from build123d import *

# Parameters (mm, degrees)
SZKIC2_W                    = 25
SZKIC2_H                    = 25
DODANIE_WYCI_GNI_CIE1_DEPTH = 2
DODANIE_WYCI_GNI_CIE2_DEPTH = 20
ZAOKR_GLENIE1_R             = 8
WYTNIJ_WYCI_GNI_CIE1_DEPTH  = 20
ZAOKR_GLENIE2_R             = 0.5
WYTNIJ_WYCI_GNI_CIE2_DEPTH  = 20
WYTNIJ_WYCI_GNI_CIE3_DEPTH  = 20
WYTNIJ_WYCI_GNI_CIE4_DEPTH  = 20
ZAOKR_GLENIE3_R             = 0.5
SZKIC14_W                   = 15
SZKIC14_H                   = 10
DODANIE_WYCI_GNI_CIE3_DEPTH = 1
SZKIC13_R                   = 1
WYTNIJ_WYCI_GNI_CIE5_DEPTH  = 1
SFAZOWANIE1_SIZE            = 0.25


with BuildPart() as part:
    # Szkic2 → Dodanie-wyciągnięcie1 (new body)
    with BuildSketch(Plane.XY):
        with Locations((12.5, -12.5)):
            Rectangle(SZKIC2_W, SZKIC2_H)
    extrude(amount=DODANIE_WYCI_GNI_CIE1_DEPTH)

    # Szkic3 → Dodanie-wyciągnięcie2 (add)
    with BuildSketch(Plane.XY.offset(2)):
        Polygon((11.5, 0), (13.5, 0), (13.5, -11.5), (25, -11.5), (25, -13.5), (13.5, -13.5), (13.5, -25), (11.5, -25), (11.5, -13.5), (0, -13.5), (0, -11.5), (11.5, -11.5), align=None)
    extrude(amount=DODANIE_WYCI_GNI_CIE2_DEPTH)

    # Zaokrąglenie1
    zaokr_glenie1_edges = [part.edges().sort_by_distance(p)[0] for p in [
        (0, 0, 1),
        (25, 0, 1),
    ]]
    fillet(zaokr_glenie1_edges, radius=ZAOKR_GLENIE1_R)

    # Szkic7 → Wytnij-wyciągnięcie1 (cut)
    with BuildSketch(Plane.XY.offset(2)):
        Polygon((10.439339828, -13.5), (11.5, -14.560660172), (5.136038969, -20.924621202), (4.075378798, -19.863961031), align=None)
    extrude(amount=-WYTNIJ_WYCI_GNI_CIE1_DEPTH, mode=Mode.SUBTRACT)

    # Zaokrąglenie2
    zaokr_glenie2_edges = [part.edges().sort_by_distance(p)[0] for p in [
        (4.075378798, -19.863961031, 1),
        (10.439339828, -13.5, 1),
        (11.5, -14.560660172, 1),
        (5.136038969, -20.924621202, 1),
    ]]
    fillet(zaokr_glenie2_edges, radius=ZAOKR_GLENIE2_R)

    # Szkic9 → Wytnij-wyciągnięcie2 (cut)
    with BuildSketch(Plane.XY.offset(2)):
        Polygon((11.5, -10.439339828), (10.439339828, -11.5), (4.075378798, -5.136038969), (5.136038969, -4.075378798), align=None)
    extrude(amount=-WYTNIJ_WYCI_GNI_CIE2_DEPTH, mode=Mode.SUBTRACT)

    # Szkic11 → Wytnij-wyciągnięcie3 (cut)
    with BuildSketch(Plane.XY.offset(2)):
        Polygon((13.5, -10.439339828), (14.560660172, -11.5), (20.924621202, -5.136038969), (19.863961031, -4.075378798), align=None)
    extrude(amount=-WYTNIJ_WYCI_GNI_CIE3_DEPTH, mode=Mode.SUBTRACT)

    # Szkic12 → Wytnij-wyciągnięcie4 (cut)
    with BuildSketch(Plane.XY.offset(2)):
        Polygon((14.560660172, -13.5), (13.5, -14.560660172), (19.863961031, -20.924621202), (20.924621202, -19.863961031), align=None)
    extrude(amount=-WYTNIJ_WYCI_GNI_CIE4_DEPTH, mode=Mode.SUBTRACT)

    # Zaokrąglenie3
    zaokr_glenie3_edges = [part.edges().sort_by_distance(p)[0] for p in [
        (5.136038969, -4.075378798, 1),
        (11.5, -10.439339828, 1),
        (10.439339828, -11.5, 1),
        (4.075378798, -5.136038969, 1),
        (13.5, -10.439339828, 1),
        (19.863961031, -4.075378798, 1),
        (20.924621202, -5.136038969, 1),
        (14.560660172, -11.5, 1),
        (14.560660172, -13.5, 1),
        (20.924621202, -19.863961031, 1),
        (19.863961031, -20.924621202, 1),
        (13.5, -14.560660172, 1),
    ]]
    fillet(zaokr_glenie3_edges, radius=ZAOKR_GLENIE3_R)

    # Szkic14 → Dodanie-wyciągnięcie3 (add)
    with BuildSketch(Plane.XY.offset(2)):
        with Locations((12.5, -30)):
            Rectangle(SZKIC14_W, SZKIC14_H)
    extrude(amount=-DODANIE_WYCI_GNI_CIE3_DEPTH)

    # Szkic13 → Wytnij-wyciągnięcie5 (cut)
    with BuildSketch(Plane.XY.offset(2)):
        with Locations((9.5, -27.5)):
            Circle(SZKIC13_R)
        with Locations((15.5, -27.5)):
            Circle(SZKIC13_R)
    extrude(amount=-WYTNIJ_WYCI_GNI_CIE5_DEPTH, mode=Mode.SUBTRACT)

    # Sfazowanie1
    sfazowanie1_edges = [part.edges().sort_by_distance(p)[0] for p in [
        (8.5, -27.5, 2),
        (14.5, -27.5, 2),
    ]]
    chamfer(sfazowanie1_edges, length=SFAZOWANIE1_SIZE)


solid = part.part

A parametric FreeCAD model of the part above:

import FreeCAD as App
import Part
import Sketcher
from FreeCAD import Vector
Q = App.Units.Quantity


def edges_at(feature, points):
    """Names of the edges that pass closest to the given points."""
    edges = feature.Shape.Edges
    near = lambda p: min(range(len(edges)), key=lambda i: edges[i].distToShape(Part.Vertex(*p))[0])
    return sorted({f"Edge{near(p) + 1}" for p in points})

doc = App.newDocument("Part")
params = doc.addObject("Spreadsheet::Sheet", "Params")
for row, (alias, value) in enumerate([
    ("sketch1_width", "25 mm"),
    ("pad1_length", "2 mm"),
    ("sketch2_width", "2 mm"),
    ("sketch2_width2", "11.5 mm"),
    ("pad2_length", "20 mm"),
    ("fillet_radius", "8 mm"),
    ("sketch3_length", "9 mm"),
    ("sketch3_length2", "1.5 mm"),
    ("pocket1_length", "20 mm"),
    ("fillet2_radius", "0.5 mm"),
    ("sketch4_length", "9 mm"),
    ("sketch4_length2", "1.5 mm"),
    ("pocket2_length", "20 mm"),
    ("sketch5_length", "9 mm"),
    ("sketch5_length2", "1.5 mm"),
    ("pocket3_length", "20 mm"),
    ("sketch6_length", "9 mm"),
    ("sketch6_length2", "1.5 mm"),
    ("pocket4_length", "20 mm"),
    ("fillet3_radius", "0.5 mm"),
    ("sketch7_width", "15 mm"),
    ("sketch7_height", "10 mm"),
    ("pad3_length", "1 mm"),
    ("sketch8_diameter", "2 mm"),
    ("pocket5_length", "1 mm"),
    ("chamfer_size", "0.25 mm"),
], start=1):
    params.set(f"A{row}", alias)
    params.set(f"B{row}", "=" + value)
    params.setAlias(f"B{row}", alias)

body = doc.addObject("PartDesign::Body", "Body")

sketch1 = body.newObject("Sketcher::SketchObject", "Sketch")
sketch1.AttachmentSupport = (doc.getObject("XY_Plane"), [""])
sketch1.MapMode = "FlatFace"
sketch1.addGeometry([
    Part.LineSegment(Vector(0, 0, 0), Vector(0, -25, 0)),
    Part.LineSegment(Vector(0, -25, 0), Vector(25, -25, 0)),
    Part.LineSegment(Vector(25, -25, 0), Vector(25, 0, 0)),
    Part.LineSegment(Vector(25, 0, 0), Vector(0, 0, 0)),
], False)
sketch1.addConstraint([
    Sketcher.Constraint("Coincident", 0, 2, 1, 1),
    Sketcher.Constraint("Coincident", 1, 2, 2, 1),
    Sketcher.Constraint("Coincident", 2, 2, 3, 1),
    Sketcher.Constraint("Coincident", 3, 2, 0, 1),
    Sketcher.Constraint("Vertical", 0),
    Sketcher.Constraint("Horizontal", 1),
    Sketcher.Constraint("Vertical", 2),
    Sketcher.Constraint("Horizontal", 3),
    Sketcher.Constraint("Coincident", 3, 2, -1, 1),
    Sketcher.Constraint("Equal", 3, 0),
    Sketcher.Constraint("DistanceX", 1, 1, 1, 2, Q("25 mm")),
])
sketch1.setExpression("Constraints[10]", "Params.sketch1_width")
pad1 = body.newObject("PartDesign::Pad", "Pad")
pad1.Profile = sketch1
pad1.setExpression("Length", "Params.pad1_length")

sketch2 = body.newObject("Sketcher::SketchObject", "Sketch001")
sketch2.AttachmentSupport = (doc.getObject("XY_Plane"), [""])
sketch2.MapMode = "FlatFace"
sketch2.AttachmentOffset = App.Placement(Vector(0, 0, 2), App.Rotation())
sketch2.addGeometry([
    Part.LineSegment(Vector(13.5, 0, 0), Vector(11.5, 0, 0)),
    Part.LineSegment(Vector(11.5, 0, 0), Vector(11.5, -11.5, 0)),
    Part.LineSegment(Vector(11.5, -11.5, 0), Vector(0, -11.5, 0)),
    Part.LineSegment(Vector(0, -11.5, 0), Vector(0, -13.5, 0)),
    Part.LineSegment(Vector(0, -13.5, 0), Vector(11.5, -13.5, 0)),
    Part.LineSegment(Vector(11.5, -13.5, 0), Vector(11.5, -25, 0)),
    Part.LineSegment(Vector(11.5, -25, 0), Vector(13.5, -25, 0)),
    Part.LineSegment(Vector(13.5, -25, 0), Vector(13.5, -13.5, 0)),
    Part.LineSegment(Vector(13.5, -13.5, 0), Vector(25, -13.5, 0)),
    Part.LineSegment(Vector(25, -13.5, 0), Vector(25, -11.5, 0)),
    Part.LineSegment(Vector(25, -11.5, 0), Vector(13.5, -11.5, 0)),
    Part.LineSegment(Vector(13.5, -11.5, 0), Vector(13.5, 0, 0)),
], False)
sketch2.addConstraint([
    Sketcher.Constraint("Coincident", 0, 2, 1, 1),
    Sketcher.Constraint("Coincident", 1, 2, 2, 1),
    Sketcher.Constraint("Coincident", 2, 2, 3, 1),
    Sketcher.Constraint("Coincident", 3, 2, 4, 1),
    Sketcher.Constraint("Coincident", 4, 2, 5, 1),
    Sketcher.Constraint("Coincident", 5, 2, 6, 1),
    Sketcher.Constraint("Coincident", 6, 2, 7, 1),
    Sketcher.Constraint("Coincident", 7, 2, 8, 1),
    Sketcher.Constraint("Coincident", 8, 2, 9, 1),
    Sketcher.Constraint("Coincident", 9, 2, 10, 1),
    Sketcher.Constraint("Coincident", 10, 2, 11, 1),
    Sketcher.Constraint("Coincident", 11, 2, 0, 1),
    Sketcher.Constraint("Horizontal", 0),
    Sketcher.Constraint("Vertical", 1),
    Sketcher.Constraint("Horizontal", 2),
    Sketcher.Constraint("Vertical", 3),
    Sketcher.Constraint("Horizontal", 4),
    Sketcher.Constraint("Vertical", 5),
    Sketcher.Constraint("Horizontal", 6),
    Sketcher.Constraint("Vertical", 7),
    Sketcher.Constraint("Horizontal", 8),
    Sketcher.Constraint("Vertical", 9),
    Sketcher.Constraint("Horizontal", 10),
    Sketcher.Constraint("Vertical", 11),
    Sketcher.Constraint("PointOnObject", 0, 2, -1),
    Sketcher.Constraint("PointOnObject", 2, 2, -2),
    Sketcher.Constraint("Horizontal", 4, 2, 7, 2),
    Sketcher.Constraint("Horizontal", 2, 2, 9, 2),
    Sketcher.Constraint("Vertical", 1, 2, 4, 2),
    Sketcher.Constraint("Vertical", 7, 2, 10, 2),
    Sketcher.Constraint("Equal", 4, 8),
    Sketcher.Constraint("Equal", 10, 1),
    Sketcher.Constraint("Equal", 6, 3),
    Sketcher.Constraint("Equal", 1, 5),
    Sketcher.Constraint("DistanceX", 0, 2, 0, 1, Q("2 mm")),
    Sketcher.Constraint("DistanceX", 2, 2, 2, 1, Q("11.5 mm")),
])
sketch2.setExpression("Constraints[34]", "Params.sketch2_width")
sketch2.setExpression("Constraints[35]", "Params.sketch2_width2")
pad2 = body.newObject("PartDesign::Pad", "Pad001")
pad2.Profile = sketch2
pad2.setExpression("Length", "Params.pad2_length")
doc.recompute()

fillet = body.newObject("PartDesign::Fillet", "Fillet")
fillet.Base = (pad2, edges_at(pad2, [(0, 0, 1), (25, 0, 1)]))
fillet.setExpression("Radius", "Params.fillet_radius")

sketch3 = body.newObject("Sketcher::SketchObject", "Sketch002")
sketch3.AttachmentSupport = (doc.getObject("XY_Plane"), [""])
sketch3.MapMode = "FlatFace"
sketch3.AttachmentOffset = App.Placement(Vector(0, 0, 2), App.Rotation())
sketch3.addGeometry([
    Part.LineSegment(Vector(11.5, -14.6, 0), Vector(10.4, -13.5, 0)),
    Part.LineSegment(Vector(10.4, -13.5, 0), Vector(4.1, -19.9, 0)),
    Part.LineSegment(Vector(4.1, -19.9, 0), Vector(5.1, -20.9, 0)),
    Part.LineSegment(Vector(5.1, -20.9, 0), Vector(11.5, -14.6, 0)),
], False)
sketch3.addConstraint([
    Sketcher.Constraint("Coincident", 0, 2, 1, 1),
    Sketcher.Constraint("Coincident", 1, 2, 2, 1),
    Sketcher.Constraint("Coincident", 2, 2, 3, 1),
    Sketcher.Constraint("Coincident", 3, 2, 0, 1),
    Sketcher.Constraint("Perpendicular", 0, 1),
    Sketcher.Constraint("Perpendicular", 1, 2),
    Sketcher.Constraint("Perpendicular", 2, 3),
    Sketcher.Constraint("Angle", 0, Q("135 deg")),
    Sketcher.Constraint("Distance", 1, Q("9 mm")),
    Sketcher.Constraint("Distance", 0, Q("1.5 mm")),
    Sketcher.Constraint("DistanceY", 0, 2, -1, 1, Q("13.5 mm")),
    Sketcher.Constraint("DistanceX", -1, 1, 3, 2, Q("11.5 mm")),
])
sketch3.setExpression("Constraints[8]", "Params.sketch3_length")
sketch3.setExpression("Constraints[9]", "Params.sketch3_length2")
pocket1 = body.newObject("PartDesign::Pocket", "Pocket")
pocket1.Profile = sketch3
pocket1.setExpression("Length", "Params.pocket1_length")
doc.recompute()

fillet2 = body.newObject("PartDesign::Fillet", "Fillet001")
fillet2.Base = (pocket1, edges_at(pocket1, [
    (4.075, -19.864, 1),
    (10.439, -13.5, 1),
    (11.5, -14.561, 1),
    (5.136, -20.925, 1),
]))
fillet2.setExpression("Radius", "Params.fillet2_radius")

sketch4 = body.newObject("Sketcher::SketchObject", "Sketch003")
sketch4.AttachmentSupport = (doc.getObject("XY_Plane"), [""])
sketch4.MapMode = "FlatFace"
sketch4.AttachmentOffset = App.Placement(Vector(0, 0, 2), App.Rotation())
sketch4.addGeometry([
    Part.LineSegment(Vector(10.4, -11.5, 0), Vector(11.5, -10.4, 0)),
    Part.LineSegment(Vector(11.5, -10.4, 0), Vector(5.1, -4.1, 0)),
    Part.LineSegment(Vector(5.1, -4.1, 0), Vector(4.1, -5.1, 0)),
    Part.LineSegment(Vector(4.1, -5.1, 0), Vector(10.4, -11.5, 0)),
], False)
sketch4.addConstraint([
    Sketcher.Constraint("Coincident", 0, 2, 1, 1),
    Sketcher.Constraint("Coincident", 1, 2, 2, 1),
    Sketcher.Constraint("Coincident", 2, 2, 3, 1),
    Sketcher.Constraint("Coincident", 3, 2, 0, 1),
    Sketcher.Constraint("Perpendicular", 0, 1),
    Sketcher.Constraint("Perpendicular", 1, 2),
    Sketcher.Constraint("Perpendicular", 2, 3),
    Sketcher.Constraint("Angle", 0, Q("45 deg")),
    Sketcher.Constraint("Distance", 1, Q("9 mm")),
    Sketcher.Constraint("Distance", 0, Q("1.5 mm")),
    Sketcher.Constraint("DistanceX", -1, 1, 0, 2, Q("11.5 mm")),
    Sketcher.Constraint("DistanceY", 3, 2, -1, 1, Q("11.5 mm")),
])
sketch4.setExpression("Constraints[8]", "Params.sketch4_length")
sketch4.setExpression("Constraints[9]", "Params.sketch4_length2")
pocket2 = body.newObject("PartDesign::Pocket", "Pocket001")
pocket2.Profile = sketch4
pocket2.setExpression("Length", "Params.pocket2_length")

sketch5 = body.newObject("Sketcher::SketchObject", "Sketch004")
sketch5.AttachmentSupport = (doc.getObject("XY_Plane"), [""])
sketch5.MapMode = "FlatFace"
sketch5.AttachmentOffset = App.Placement(Vector(0, 0, 2), App.Rotation())
sketch5.addGeometry([
    Part.LineSegment(Vector(13.5, -10.4, 0), Vector(14.6, -11.5, 0)),
    Part.LineSegment(Vector(14.6, -11.5, 0), Vector(20.9, -5.1, 0)),
    Part.LineSegment(Vector(20.9, -5.1, 0), Vector(19.9, -4.1, 0)),
    Part.LineSegment(Vector(19.9, -4.1, 0), Vector(13.5, -10.4, 0)),
], False)
sketch5.addConstraint([
    Sketcher.Constraint("Coincident", 0, 2, 1, 1),
    Sketcher.Constraint("Coincident", 1, 2, 2, 1),
    Sketcher.Constraint("Coincident", 2, 2, 3, 1),
    Sketcher.Constraint("Coincident", 3, 2, 0, 1),
    Sketcher.Constraint("Perpendicular", 0, 1),
    Sketcher.Constraint("Perpendicular", 1, 2),
    Sketcher.Constraint("Perpendicular", 2, 3),
    Sketcher.Constraint("Angle", 0, Q("-45 deg")),
    Sketcher.Constraint("Distance", 1, Q("9 mm")),
    Sketcher.Constraint("Distance", 0, Q("1.5 mm")),
    Sketcher.Constraint("DistanceY", 0, 2, -1, 1, Q("11.5 mm")),
    Sketcher.Constraint("DistanceX", -1, 1, 3, 2, Q("13.5 mm")),
])
sketch5.setExpression("Constraints[8]", "Params.sketch5_length")
sketch5.setExpression("Constraints[9]", "Params.sketch5_length2")
pocket3 = body.newObject("PartDesign::Pocket", "Pocket002")
pocket3.Profile = sketch5
pocket3.setExpression("Length", "Params.pocket3_length")

sketch6 = body.newObject("Sketcher::SketchObject", "Sketch005")
sketch6.AttachmentSupport = (doc.getObject("XY_Plane"), [""])
sketch6.MapMode = "FlatFace"
sketch6.AttachmentOffset = App.Placement(Vector(0, 0, 2), App.Rotation())
sketch6.addGeometry([
    Part.LineSegment(Vector(14.6, -13.5, 0), Vector(13.5, -14.6, 0)),
    Part.LineSegment(Vector(13.5, -14.6, 0), Vector(19.9, -20.9, 0)),
    Part.LineSegment(Vector(19.9, -20.9, 0), Vector(20.9, -19.9, 0)),
    Part.LineSegment(Vector(20.9, -19.9, 0), Vector(14.6, -13.5, 0)),
], False)
sketch6.addConstraint([
    Sketcher.Constraint("Coincident", 0, 2, 1, 1),
    Sketcher.Constraint("Coincident", 1, 2, 2, 1),
    Sketcher.Constraint("Coincident", 2, 2, 3, 1),
    Sketcher.Constraint("Coincident", 3, 2, 0, 1),
    Sketcher.Constraint("Perpendicular", 0, 1),
    Sketcher.Constraint("Perpendicular", 1, 2),
    Sketcher.Constraint("Perpendicular", 2, 3),
    Sketcher.Constraint("Angle", 0, Q("-135 deg")),
    Sketcher.Constraint("Distance", 1, Q("9 mm")),
    Sketcher.Constraint("Distance", 0, Q("1.5 mm")),
    Sketcher.Constraint("DistanceX", -1, 1, 0, 2, Q("13.5 mm")),
    Sketcher.Constraint("DistanceY", 3, 2, -1, 1, Q("13.5 mm")),
])
sketch6.setExpression("Constraints[8]", "Params.sketch6_length")
sketch6.setExpression("Constraints[9]", "Params.sketch6_length2")
pocket4 = body.newObject("PartDesign::Pocket", "Pocket003")
pocket4.Profile = sketch6
pocket4.setExpression("Length", "Params.pocket4_length")
doc.recompute()

fillet3 = body.newObject("PartDesign::Fillet", "Fillet002")
fillet3.Base = (pocket4, edges_at(pocket4, [
    (5.136, -4.075, 1),
    (11.5, -10.439, 1),
    (10.439, -11.5, 1),
    (4.075, -5.136, 1),
    (13.5, -10.439, 1),
    (19.864, -4.075, 1),
    (20.925, -5.136, 1),
    (14.561, -11.5, 1),
    (14.561, -13.5, 1),
    (20.925, -19.864, 1),
    (19.864, -20.925, 1),
    (13.5, -14.561, 1),
]))
fillet3.setExpression("Radius", "Params.fillet3_radius")

sketch7 = body.newObject("Sketcher::SketchObject", "Sketch006")
sketch7.AttachmentSupport = (doc.getObject("XY_Plane"), [""])
sketch7.MapMode = "FlatFace"
sketch7.AttachmentOffset = App.Placement(Vector(0, 0, 2), App.Rotation())
sketch7.addGeometry([
    Part.LineSegment(Vector(5, -25, 0), Vector(5, -35, 0)),
    Part.LineSegment(Vector(5, -35, 0), Vector(20, -35, 0)),
    Part.LineSegment(Vector(20, -35, 0), Vector(20, -25, 0)),
    Part.LineSegment(Vector(20, -25, 0), Vector(5, -25, 0)),
], False)
sketch7.addConstraint([
    Sketcher.Constraint("Coincident", 0, 2, 1, 1),
    Sketcher.Constraint("Coincident", 1, 2, 2, 1),
    Sketcher.Constraint("Coincident", 2, 2, 3, 1),
    Sketcher.Constraint("Coincident", 3, 2, 0, 1),
    Sketcher.Constraint("Vertical", 0),
    Sketcher.Constraint("Horizontal", 1),
    Sketcher.Constraint("Vertical", 2),
    Sketcher.Constraint("Horizontal", 3),
    Sketcher.Constraint("DistanceX", 1, 1, 1, 2, Q("15 mm")),
    Sketcher.Constraint("DistanceY", 0, 2, 0, 1, Q("10 mm")),
    Sketcher.Constraint("DistanceX", -1, 1, 0, 2, Q("5 mm")),
    Sketcher.Constraint("DistanceY", 0, 2, -1, 1, Q("35 mm")),
])
sketch7.setExpression("Constraints[8]", "Params.sketch7_width")
sketch7.setExpression("Constraints[9]", "Params.sketch7_height")
pad3 = body.newObject("PartDesign::Pad", "Pad002")
pad3.Profile = sketch7
pad3.setExpression("Length", "Params.pad3_length")
pad3.Reversed = True

sketch8 = body.newObject("Sketcher::SketchObject", "Sketch007")
sketch8.AttachmentSupport = (doc.getObject("XY_Plane"), [""])
sketch8.MapMode = "FlatFace"
sketch8.AttachmentOffset = App.Placement(Vector(0, 0, 2), App.Rotation())
sketch8.addGeometry([
    Part.Circle(Vector(9.5, -27.5, 0), Vector(0, 0, 1), 1),
    Part.Circle(Vector(15.5, -27.5, 0), Vector(0, 0, 1), 1),
], False)
sketch8.addConstraint([
    Sketcher.Constraint("Equal", 0, 1),
    Sketcher.Constraint("Horizontal", 0, 3, 1, 3),
    Sketcher.Constraint("Diameter", 0, Q("2 mm")),
    Sketcher.Constraint("DistanceX", 0, 3, 1, 3, Q("6 mm")),
    Sketcher.Constraint("DistanceX", -1, 1, 0, 3, Q("9.5 mm")),
    Sketcher.Constraint("DistanceY", 0, 3, -1, 1, Q("27.5 mm")),
])
sketch8.setExpression("Constraints[2]", "Params.sketch8_diameter")
pocket5 = body.newObject("PartDesign::Pocket", "Pocket004")
pocket5.Profile = sketch8
pocket5.setExpression("Length", "Params.pocket5_length")
doc.recompute()

chamfer = body.newObject("PartDesign::Chamfer", "Chamfer")
chamfer.Base = (pocket5, edges_at(pocket5, [(8.5, -27.5, 2), (14.5, -27.5, 2)]))
chamfer.setExpression("Size", "Params.chamfer_size")

doc.recompute()
